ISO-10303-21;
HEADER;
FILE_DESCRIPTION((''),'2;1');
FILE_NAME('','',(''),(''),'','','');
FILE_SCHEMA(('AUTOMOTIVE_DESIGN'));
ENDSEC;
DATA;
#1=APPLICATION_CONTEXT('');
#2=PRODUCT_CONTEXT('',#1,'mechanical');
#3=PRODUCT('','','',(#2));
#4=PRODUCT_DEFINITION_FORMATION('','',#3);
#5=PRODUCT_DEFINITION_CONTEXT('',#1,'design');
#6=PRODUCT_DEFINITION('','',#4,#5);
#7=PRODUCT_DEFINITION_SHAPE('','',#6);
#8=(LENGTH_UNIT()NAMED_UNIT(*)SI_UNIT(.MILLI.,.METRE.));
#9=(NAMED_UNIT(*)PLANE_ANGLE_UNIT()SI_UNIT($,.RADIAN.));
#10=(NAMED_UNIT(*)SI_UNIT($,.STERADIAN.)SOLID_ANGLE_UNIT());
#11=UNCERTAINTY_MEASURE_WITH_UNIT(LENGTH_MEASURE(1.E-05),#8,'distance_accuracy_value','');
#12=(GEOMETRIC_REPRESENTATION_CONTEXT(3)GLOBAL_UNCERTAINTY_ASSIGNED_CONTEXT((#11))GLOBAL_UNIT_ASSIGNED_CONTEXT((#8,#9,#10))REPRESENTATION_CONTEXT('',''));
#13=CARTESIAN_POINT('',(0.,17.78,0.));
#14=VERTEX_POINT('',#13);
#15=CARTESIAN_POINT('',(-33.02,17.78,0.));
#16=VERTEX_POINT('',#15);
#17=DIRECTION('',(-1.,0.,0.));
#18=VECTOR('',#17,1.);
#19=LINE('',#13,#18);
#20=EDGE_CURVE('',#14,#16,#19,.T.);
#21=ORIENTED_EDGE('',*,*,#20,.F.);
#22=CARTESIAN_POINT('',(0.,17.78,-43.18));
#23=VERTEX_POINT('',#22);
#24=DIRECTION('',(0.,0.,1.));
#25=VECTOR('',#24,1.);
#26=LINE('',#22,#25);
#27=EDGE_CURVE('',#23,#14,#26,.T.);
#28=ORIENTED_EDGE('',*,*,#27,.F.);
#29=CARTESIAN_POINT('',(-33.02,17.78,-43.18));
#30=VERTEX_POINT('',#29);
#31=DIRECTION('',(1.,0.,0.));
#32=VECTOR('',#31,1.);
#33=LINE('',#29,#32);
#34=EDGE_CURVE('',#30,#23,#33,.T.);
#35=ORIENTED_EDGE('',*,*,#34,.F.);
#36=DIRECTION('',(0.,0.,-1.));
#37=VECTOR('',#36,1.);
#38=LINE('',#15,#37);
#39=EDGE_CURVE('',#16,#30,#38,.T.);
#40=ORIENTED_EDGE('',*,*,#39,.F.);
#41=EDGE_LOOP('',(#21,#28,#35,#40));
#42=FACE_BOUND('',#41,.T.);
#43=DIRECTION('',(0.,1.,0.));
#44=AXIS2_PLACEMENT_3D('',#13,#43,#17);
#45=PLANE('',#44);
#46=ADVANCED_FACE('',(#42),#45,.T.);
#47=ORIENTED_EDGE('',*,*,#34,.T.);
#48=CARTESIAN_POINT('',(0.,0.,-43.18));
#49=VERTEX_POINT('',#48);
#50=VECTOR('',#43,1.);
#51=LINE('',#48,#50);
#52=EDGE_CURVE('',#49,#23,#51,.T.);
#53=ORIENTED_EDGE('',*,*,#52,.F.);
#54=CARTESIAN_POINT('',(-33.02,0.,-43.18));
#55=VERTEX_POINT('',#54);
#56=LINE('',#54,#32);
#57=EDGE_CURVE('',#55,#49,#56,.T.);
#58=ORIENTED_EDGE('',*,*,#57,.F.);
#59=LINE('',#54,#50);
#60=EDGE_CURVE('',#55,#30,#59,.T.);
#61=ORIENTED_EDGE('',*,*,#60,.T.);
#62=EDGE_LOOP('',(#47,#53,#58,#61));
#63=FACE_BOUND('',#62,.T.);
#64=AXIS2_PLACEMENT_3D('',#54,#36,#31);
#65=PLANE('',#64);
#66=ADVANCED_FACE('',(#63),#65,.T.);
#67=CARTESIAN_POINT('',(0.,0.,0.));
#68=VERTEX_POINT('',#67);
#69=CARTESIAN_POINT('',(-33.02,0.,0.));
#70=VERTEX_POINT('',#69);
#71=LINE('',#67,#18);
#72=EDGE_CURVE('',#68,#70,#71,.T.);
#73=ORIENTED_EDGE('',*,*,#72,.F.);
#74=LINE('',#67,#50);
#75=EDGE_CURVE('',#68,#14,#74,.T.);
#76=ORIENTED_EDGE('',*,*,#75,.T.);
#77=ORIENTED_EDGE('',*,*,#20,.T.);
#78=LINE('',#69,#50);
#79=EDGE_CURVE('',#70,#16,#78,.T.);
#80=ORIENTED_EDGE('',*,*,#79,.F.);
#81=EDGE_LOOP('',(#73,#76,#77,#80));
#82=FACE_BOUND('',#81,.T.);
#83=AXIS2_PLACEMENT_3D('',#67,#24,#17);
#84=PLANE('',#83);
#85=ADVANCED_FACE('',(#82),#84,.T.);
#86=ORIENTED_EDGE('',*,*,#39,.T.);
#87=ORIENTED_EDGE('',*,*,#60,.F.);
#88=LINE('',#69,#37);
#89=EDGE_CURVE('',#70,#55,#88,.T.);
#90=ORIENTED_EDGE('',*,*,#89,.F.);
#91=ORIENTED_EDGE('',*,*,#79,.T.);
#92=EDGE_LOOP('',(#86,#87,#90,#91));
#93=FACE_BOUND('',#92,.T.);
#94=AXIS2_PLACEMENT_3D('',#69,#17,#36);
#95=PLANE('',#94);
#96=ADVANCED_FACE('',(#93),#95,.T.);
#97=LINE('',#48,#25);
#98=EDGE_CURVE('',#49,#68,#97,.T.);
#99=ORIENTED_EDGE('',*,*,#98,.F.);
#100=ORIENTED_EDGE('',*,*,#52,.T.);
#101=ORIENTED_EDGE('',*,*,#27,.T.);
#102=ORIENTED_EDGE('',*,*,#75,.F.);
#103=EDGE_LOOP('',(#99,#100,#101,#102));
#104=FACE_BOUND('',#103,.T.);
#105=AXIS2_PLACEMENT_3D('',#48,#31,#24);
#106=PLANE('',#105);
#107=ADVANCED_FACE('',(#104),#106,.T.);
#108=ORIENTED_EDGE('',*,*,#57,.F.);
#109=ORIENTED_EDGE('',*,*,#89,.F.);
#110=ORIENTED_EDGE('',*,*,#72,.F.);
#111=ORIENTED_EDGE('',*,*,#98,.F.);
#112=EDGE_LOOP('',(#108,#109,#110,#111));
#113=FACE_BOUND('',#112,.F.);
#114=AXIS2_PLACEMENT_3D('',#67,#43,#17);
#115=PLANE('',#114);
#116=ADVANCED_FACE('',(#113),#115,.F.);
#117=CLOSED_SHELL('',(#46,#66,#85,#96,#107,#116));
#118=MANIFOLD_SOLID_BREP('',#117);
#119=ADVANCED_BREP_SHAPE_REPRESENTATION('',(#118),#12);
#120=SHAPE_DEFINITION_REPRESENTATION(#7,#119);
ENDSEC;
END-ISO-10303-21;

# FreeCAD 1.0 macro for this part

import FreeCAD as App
import Part
import Sketcher
Q = App.Units.Quantity


def add_polygon(sketch, points):
    """Adds a closed chain of lines whose ends are joined by coincident constraints."""
    first, n = sketch.GeometryCount, len(points)
    for a, b in zip(points, points[1:] + points[:1]):
        sketch.addGeometry(Part.LineSegment(App.Vector(*a, 0), App.Vector(*b, 0)), False)
    for i in range(n):
        sketch.addConstraint(Sketcher.Constraint("Coincident", first + i, 2, first + (i + 1) % n, 1))

doc = App.newDocument("Part")
body = doc.addObject("PartDesign::Body", "Body")

sketch1 = body.newObject("Sketcher::SketchObject", "Sketch")
sketch1.AttachmentSupport = (doc.getObject("XZ_Plane"), [""])
sketch1.MapMode = "FlatFace"
add_polygon(sketch1, [(-33.02, 0), (0, 0), (0, -43.18), (-33.02, -43.18)])
sketch1.addConstraint([
    Sketcher.Constraint("Horizontal", 0),
    Sketcher.Constraint("Vertical", 1),
    Sketcher.Constraint("Horizontal", 2),
    Sketcher.Constraint("Vertical", 3),
    Sketcher.Constraint("Coincident", 0, 2, -1, 1),
    Sketcher.Constraint("DistanceX", 0, 1, 0, 2, Q("1.3 in")),
    Sketcher.Constraint("DistanceY", 1, 2, 1, 1, Q("1.7 in")),
])
pad1 = body.newObject("PartDesign::Pad", "Pad")
pad1.Profile = sketch1
pad1.Length = Q("0.7 in")
pad1.Reversed = True

doc.recompute()
